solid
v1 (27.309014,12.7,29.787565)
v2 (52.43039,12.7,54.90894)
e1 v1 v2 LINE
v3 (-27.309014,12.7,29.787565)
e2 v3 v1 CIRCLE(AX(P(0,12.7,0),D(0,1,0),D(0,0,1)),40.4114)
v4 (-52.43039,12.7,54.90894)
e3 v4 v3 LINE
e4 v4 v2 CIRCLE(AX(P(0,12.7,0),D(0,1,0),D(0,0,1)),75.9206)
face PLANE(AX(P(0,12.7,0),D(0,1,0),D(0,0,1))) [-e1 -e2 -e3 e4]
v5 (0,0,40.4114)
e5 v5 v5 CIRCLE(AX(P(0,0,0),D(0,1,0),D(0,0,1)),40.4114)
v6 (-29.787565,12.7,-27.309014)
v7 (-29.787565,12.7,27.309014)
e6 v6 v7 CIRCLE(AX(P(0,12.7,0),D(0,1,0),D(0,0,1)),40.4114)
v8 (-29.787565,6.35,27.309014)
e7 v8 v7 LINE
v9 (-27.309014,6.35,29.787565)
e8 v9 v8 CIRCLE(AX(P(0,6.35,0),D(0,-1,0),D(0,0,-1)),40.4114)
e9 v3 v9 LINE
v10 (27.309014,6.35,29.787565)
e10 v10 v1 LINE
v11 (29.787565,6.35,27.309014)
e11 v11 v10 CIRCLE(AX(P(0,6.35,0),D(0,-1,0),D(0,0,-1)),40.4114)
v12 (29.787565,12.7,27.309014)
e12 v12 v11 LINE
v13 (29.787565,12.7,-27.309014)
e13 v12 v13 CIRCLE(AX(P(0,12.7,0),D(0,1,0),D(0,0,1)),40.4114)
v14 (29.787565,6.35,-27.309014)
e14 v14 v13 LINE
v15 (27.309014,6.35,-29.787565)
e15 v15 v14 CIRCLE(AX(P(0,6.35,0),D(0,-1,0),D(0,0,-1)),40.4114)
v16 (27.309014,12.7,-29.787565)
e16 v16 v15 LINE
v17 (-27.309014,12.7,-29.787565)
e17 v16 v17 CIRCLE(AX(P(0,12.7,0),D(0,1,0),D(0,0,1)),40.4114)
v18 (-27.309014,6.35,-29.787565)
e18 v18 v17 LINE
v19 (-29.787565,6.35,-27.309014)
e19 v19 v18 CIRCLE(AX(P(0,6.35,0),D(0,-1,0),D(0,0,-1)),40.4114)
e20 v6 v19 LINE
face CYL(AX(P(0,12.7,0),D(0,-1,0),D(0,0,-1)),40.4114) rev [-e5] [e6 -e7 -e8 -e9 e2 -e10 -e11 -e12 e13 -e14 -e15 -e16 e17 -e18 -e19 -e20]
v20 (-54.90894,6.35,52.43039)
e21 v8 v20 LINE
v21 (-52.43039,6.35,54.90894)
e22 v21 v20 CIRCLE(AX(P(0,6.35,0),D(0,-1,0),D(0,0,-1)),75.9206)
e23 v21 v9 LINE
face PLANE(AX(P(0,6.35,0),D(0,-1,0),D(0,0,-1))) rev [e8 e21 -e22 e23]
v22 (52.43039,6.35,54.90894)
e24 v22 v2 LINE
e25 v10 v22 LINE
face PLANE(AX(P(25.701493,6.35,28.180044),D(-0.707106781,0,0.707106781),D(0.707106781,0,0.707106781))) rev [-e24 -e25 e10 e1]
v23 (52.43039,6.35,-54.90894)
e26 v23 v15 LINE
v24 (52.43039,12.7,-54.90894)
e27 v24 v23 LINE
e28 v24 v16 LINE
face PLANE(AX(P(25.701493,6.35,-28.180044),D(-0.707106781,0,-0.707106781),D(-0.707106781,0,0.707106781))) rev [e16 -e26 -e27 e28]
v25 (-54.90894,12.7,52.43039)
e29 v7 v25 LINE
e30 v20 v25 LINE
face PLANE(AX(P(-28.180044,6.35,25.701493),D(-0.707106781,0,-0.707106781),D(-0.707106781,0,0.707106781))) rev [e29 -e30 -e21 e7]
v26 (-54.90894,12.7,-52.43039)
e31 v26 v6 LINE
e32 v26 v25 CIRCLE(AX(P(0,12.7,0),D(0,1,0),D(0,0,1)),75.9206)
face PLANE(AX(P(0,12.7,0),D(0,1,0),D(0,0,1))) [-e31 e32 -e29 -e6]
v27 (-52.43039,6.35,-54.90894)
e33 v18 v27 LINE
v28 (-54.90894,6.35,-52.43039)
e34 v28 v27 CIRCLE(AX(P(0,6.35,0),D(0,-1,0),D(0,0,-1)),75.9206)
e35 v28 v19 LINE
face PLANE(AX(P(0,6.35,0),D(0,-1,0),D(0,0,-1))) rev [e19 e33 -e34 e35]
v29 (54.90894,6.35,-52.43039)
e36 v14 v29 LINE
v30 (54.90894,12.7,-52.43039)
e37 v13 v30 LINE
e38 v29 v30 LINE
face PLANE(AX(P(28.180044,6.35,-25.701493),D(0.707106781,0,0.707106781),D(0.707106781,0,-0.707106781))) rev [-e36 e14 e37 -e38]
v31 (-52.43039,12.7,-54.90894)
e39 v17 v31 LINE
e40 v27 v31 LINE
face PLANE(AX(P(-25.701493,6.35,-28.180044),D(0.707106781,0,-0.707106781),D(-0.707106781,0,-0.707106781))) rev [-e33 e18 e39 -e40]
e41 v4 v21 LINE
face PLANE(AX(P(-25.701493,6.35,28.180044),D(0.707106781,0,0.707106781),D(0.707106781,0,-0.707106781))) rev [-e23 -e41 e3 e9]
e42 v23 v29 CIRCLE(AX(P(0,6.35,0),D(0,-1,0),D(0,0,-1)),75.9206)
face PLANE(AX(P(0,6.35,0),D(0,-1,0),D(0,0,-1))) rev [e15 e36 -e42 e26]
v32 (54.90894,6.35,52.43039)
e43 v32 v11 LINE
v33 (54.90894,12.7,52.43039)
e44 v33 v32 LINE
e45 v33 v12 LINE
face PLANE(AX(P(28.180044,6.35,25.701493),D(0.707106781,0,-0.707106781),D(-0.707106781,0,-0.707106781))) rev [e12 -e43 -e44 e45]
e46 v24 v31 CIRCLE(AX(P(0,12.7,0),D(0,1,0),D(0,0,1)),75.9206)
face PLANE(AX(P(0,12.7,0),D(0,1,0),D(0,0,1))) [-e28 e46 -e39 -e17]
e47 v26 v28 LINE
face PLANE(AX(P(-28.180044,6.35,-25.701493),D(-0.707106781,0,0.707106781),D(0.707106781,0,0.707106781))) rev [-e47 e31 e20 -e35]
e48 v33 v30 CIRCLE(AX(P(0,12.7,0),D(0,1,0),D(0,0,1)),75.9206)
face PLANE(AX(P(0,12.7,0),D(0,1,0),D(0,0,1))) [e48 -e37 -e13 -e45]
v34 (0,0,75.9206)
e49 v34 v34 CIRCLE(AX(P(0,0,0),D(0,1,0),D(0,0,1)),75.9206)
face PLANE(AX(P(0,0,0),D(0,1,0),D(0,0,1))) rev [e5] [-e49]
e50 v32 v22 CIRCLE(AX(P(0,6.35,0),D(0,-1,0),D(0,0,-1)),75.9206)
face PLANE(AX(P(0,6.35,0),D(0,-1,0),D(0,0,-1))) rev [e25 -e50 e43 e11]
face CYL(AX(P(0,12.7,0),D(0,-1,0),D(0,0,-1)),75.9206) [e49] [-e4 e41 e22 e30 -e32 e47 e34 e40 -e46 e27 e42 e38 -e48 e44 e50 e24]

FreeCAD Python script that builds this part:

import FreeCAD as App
import Part
import Sketcher
Q = App.Units.Quantity


def add_polygon(sketch, points):
    """Adds a closed chain of lines whose ends are joined by coincident constraints."""
    first, n = sketch.GeometryCount, len(points)
    for a, b in zip(points, points[1:] + points[:1]):
        sketch.addGeometry(Part.LineSegment(App.Vector(*a, 0), App.Vector(*b, 0)), False)
    for i in range(n):
        sketch.addConstraint(Sketcher.Constraint("Coincident", first + i, 2, first + (i + 1) % n, 1))

doc = App.newDocument("Part")
body = doc.addObject("PartDesign::Body", "Body")

# Sketch on XZ plane
sketch1 = body.newObject("Sketcher::SketchObject", "Sketch")
sketch1.AttachmentSupport = (doc.getObject("XZ_Plane"), [""])
sketch1.MapMode = "FlatFace"
sketch1.addGeometry(Part.Circle(App.Vector(0, 0, 0), App.Vector(0, 0, 1), 76), False)
sketch1.addConstraint([
    Sketcher.Constraint("Coincident", 0, 3, -1, 1),
    Sketcher.Constraint("Diameter", 0, Q("5.978 in")),
])
pad1 = body.newObject("PartDesign::Pad", "Pad")
pad1.Profile = sketch1
pad1.Length = Q("0.5 in")
pad1.Reversed = True

# Sketch on XZ plane
sketch2 = body.newObject("Sketcher::SketchObject", "Sketch001")
sketch2.AttachmentSupport = (doc.getObject("XZ_Plane"), [""])
sketch2.MapMode = "FlatFace"
sketch2.addGeometry(Part.Circle(App.Vector(0, 0, 0), App.Vector(0, 0, 1), 40), False)
sketch2.addConstraint([
    Sketcher.Constraint("Coincident", 0, 3, -1, 1),
    Sketcher.Constraint("Diameter", 0, Q("3.182 in")),
])
pocket1 = body.newObject("PartDesign::Pocket", "Pocket")
pocket1.Profile = sketch2
pocket1.Type = "ThroughAll"

# Sketch on XZ plane
sketch3 = body.newObject("Sketcher::SketchObject", "Sketch002")
sketch3.AttachmentSupport = (doc.getObject("XZ_Plane"), [""])
sketch3.MapMode = "FlatFace"
sketch3.AttachmentOffset = App.Placement(App.Vector(0, 0, -0.5 * 25.4), App.Rotation())
add_polygon(sketch3, [(-28.2, -25.7), (-25.7, -28.2), (-60.5, -63), (-63, -60.5)])  # lines 0-3
add_polygon(sketch3, [(28.2, -25.7), (63, -60.5), (60.5, -63), (25.7, -28.2)])  # lines 4-7
add_polygon(sketch3, [(25.7, 28.2), (60.5, 63), (63, 60.5), (28.2, 25.7)])  # lines 8-11
add_polygon(sketch3, [(-28.2, 25.7), (-63, 60.5), (-60.5, 63), (-25.7, 28.2)])  # lines 12-15
sketch3.addConstraint([
    Sketcher.Constraint("Symmetric", 1, 2, 8, 2, -1, 1),
    Sketcher.Constraint("Symmetric", 2, 2, 9, 2, -1, 1),
    Sketcher.Constraint("Symmetric", 3, 2, 10, 2, -1, 1),
    Sketcher.Constraint("Symmetric", 0, 2, 11, 2, -1, 1),
    Sketcher.Constraint("Symmetric", 4, 2, 12, 2, -1, 1),
    Sketcher.Constraint("Symmetric", 5, 2, 13, 2, -1, 1),
    Sketcher.Constraint("Symmetric", 6, 2, 14, 2, -1, 1),
    Sketcher.Constraint("Symmetric", 7, 2, 15, 2, -1, 1),
    Sketcher.Constraint("Symmetric", 2, 2, 4, 2, -2),
    Sketcher.Constraint("Symmetric", 1, 2, 5, 2, -2),
    Sketcher.Constraint("Symmetric", 0, 2, 6, 2, -2),
    Sketcher.Constraint("Symmetric", 3, 2, 7, 2, -2),
    Sketcher.Constraint("Perpendicular", 0, 1),
    Sketcher.Constraint("Perpendicular", 1, 2),
    Sketcher.Constraint("Perpendicular", 2, 3),
    Sketcher.Constraint("Perpendicular", 3, 4),
    Sketcher.Constraint("Distance", 0, Q("0.138 in")),
    Sketcher.Constraint("DistanceX", 3, 2, 4, 2, 91.185299),
    Sketcher.Constraint("DistanceY", 6, 2, 8, 2, 91.185299),
    Sketcher.Constraint("DistanceX", 1, 2, 0, 2, 34.825212),
])
pocket2 = body.newObject("PartDesign::Pocket", "Pocket001")
pocket2.Profile = sketch3
pocket2.Length = Q("0.25 in")
pocket2.Reversed = True

doc.recompute()
